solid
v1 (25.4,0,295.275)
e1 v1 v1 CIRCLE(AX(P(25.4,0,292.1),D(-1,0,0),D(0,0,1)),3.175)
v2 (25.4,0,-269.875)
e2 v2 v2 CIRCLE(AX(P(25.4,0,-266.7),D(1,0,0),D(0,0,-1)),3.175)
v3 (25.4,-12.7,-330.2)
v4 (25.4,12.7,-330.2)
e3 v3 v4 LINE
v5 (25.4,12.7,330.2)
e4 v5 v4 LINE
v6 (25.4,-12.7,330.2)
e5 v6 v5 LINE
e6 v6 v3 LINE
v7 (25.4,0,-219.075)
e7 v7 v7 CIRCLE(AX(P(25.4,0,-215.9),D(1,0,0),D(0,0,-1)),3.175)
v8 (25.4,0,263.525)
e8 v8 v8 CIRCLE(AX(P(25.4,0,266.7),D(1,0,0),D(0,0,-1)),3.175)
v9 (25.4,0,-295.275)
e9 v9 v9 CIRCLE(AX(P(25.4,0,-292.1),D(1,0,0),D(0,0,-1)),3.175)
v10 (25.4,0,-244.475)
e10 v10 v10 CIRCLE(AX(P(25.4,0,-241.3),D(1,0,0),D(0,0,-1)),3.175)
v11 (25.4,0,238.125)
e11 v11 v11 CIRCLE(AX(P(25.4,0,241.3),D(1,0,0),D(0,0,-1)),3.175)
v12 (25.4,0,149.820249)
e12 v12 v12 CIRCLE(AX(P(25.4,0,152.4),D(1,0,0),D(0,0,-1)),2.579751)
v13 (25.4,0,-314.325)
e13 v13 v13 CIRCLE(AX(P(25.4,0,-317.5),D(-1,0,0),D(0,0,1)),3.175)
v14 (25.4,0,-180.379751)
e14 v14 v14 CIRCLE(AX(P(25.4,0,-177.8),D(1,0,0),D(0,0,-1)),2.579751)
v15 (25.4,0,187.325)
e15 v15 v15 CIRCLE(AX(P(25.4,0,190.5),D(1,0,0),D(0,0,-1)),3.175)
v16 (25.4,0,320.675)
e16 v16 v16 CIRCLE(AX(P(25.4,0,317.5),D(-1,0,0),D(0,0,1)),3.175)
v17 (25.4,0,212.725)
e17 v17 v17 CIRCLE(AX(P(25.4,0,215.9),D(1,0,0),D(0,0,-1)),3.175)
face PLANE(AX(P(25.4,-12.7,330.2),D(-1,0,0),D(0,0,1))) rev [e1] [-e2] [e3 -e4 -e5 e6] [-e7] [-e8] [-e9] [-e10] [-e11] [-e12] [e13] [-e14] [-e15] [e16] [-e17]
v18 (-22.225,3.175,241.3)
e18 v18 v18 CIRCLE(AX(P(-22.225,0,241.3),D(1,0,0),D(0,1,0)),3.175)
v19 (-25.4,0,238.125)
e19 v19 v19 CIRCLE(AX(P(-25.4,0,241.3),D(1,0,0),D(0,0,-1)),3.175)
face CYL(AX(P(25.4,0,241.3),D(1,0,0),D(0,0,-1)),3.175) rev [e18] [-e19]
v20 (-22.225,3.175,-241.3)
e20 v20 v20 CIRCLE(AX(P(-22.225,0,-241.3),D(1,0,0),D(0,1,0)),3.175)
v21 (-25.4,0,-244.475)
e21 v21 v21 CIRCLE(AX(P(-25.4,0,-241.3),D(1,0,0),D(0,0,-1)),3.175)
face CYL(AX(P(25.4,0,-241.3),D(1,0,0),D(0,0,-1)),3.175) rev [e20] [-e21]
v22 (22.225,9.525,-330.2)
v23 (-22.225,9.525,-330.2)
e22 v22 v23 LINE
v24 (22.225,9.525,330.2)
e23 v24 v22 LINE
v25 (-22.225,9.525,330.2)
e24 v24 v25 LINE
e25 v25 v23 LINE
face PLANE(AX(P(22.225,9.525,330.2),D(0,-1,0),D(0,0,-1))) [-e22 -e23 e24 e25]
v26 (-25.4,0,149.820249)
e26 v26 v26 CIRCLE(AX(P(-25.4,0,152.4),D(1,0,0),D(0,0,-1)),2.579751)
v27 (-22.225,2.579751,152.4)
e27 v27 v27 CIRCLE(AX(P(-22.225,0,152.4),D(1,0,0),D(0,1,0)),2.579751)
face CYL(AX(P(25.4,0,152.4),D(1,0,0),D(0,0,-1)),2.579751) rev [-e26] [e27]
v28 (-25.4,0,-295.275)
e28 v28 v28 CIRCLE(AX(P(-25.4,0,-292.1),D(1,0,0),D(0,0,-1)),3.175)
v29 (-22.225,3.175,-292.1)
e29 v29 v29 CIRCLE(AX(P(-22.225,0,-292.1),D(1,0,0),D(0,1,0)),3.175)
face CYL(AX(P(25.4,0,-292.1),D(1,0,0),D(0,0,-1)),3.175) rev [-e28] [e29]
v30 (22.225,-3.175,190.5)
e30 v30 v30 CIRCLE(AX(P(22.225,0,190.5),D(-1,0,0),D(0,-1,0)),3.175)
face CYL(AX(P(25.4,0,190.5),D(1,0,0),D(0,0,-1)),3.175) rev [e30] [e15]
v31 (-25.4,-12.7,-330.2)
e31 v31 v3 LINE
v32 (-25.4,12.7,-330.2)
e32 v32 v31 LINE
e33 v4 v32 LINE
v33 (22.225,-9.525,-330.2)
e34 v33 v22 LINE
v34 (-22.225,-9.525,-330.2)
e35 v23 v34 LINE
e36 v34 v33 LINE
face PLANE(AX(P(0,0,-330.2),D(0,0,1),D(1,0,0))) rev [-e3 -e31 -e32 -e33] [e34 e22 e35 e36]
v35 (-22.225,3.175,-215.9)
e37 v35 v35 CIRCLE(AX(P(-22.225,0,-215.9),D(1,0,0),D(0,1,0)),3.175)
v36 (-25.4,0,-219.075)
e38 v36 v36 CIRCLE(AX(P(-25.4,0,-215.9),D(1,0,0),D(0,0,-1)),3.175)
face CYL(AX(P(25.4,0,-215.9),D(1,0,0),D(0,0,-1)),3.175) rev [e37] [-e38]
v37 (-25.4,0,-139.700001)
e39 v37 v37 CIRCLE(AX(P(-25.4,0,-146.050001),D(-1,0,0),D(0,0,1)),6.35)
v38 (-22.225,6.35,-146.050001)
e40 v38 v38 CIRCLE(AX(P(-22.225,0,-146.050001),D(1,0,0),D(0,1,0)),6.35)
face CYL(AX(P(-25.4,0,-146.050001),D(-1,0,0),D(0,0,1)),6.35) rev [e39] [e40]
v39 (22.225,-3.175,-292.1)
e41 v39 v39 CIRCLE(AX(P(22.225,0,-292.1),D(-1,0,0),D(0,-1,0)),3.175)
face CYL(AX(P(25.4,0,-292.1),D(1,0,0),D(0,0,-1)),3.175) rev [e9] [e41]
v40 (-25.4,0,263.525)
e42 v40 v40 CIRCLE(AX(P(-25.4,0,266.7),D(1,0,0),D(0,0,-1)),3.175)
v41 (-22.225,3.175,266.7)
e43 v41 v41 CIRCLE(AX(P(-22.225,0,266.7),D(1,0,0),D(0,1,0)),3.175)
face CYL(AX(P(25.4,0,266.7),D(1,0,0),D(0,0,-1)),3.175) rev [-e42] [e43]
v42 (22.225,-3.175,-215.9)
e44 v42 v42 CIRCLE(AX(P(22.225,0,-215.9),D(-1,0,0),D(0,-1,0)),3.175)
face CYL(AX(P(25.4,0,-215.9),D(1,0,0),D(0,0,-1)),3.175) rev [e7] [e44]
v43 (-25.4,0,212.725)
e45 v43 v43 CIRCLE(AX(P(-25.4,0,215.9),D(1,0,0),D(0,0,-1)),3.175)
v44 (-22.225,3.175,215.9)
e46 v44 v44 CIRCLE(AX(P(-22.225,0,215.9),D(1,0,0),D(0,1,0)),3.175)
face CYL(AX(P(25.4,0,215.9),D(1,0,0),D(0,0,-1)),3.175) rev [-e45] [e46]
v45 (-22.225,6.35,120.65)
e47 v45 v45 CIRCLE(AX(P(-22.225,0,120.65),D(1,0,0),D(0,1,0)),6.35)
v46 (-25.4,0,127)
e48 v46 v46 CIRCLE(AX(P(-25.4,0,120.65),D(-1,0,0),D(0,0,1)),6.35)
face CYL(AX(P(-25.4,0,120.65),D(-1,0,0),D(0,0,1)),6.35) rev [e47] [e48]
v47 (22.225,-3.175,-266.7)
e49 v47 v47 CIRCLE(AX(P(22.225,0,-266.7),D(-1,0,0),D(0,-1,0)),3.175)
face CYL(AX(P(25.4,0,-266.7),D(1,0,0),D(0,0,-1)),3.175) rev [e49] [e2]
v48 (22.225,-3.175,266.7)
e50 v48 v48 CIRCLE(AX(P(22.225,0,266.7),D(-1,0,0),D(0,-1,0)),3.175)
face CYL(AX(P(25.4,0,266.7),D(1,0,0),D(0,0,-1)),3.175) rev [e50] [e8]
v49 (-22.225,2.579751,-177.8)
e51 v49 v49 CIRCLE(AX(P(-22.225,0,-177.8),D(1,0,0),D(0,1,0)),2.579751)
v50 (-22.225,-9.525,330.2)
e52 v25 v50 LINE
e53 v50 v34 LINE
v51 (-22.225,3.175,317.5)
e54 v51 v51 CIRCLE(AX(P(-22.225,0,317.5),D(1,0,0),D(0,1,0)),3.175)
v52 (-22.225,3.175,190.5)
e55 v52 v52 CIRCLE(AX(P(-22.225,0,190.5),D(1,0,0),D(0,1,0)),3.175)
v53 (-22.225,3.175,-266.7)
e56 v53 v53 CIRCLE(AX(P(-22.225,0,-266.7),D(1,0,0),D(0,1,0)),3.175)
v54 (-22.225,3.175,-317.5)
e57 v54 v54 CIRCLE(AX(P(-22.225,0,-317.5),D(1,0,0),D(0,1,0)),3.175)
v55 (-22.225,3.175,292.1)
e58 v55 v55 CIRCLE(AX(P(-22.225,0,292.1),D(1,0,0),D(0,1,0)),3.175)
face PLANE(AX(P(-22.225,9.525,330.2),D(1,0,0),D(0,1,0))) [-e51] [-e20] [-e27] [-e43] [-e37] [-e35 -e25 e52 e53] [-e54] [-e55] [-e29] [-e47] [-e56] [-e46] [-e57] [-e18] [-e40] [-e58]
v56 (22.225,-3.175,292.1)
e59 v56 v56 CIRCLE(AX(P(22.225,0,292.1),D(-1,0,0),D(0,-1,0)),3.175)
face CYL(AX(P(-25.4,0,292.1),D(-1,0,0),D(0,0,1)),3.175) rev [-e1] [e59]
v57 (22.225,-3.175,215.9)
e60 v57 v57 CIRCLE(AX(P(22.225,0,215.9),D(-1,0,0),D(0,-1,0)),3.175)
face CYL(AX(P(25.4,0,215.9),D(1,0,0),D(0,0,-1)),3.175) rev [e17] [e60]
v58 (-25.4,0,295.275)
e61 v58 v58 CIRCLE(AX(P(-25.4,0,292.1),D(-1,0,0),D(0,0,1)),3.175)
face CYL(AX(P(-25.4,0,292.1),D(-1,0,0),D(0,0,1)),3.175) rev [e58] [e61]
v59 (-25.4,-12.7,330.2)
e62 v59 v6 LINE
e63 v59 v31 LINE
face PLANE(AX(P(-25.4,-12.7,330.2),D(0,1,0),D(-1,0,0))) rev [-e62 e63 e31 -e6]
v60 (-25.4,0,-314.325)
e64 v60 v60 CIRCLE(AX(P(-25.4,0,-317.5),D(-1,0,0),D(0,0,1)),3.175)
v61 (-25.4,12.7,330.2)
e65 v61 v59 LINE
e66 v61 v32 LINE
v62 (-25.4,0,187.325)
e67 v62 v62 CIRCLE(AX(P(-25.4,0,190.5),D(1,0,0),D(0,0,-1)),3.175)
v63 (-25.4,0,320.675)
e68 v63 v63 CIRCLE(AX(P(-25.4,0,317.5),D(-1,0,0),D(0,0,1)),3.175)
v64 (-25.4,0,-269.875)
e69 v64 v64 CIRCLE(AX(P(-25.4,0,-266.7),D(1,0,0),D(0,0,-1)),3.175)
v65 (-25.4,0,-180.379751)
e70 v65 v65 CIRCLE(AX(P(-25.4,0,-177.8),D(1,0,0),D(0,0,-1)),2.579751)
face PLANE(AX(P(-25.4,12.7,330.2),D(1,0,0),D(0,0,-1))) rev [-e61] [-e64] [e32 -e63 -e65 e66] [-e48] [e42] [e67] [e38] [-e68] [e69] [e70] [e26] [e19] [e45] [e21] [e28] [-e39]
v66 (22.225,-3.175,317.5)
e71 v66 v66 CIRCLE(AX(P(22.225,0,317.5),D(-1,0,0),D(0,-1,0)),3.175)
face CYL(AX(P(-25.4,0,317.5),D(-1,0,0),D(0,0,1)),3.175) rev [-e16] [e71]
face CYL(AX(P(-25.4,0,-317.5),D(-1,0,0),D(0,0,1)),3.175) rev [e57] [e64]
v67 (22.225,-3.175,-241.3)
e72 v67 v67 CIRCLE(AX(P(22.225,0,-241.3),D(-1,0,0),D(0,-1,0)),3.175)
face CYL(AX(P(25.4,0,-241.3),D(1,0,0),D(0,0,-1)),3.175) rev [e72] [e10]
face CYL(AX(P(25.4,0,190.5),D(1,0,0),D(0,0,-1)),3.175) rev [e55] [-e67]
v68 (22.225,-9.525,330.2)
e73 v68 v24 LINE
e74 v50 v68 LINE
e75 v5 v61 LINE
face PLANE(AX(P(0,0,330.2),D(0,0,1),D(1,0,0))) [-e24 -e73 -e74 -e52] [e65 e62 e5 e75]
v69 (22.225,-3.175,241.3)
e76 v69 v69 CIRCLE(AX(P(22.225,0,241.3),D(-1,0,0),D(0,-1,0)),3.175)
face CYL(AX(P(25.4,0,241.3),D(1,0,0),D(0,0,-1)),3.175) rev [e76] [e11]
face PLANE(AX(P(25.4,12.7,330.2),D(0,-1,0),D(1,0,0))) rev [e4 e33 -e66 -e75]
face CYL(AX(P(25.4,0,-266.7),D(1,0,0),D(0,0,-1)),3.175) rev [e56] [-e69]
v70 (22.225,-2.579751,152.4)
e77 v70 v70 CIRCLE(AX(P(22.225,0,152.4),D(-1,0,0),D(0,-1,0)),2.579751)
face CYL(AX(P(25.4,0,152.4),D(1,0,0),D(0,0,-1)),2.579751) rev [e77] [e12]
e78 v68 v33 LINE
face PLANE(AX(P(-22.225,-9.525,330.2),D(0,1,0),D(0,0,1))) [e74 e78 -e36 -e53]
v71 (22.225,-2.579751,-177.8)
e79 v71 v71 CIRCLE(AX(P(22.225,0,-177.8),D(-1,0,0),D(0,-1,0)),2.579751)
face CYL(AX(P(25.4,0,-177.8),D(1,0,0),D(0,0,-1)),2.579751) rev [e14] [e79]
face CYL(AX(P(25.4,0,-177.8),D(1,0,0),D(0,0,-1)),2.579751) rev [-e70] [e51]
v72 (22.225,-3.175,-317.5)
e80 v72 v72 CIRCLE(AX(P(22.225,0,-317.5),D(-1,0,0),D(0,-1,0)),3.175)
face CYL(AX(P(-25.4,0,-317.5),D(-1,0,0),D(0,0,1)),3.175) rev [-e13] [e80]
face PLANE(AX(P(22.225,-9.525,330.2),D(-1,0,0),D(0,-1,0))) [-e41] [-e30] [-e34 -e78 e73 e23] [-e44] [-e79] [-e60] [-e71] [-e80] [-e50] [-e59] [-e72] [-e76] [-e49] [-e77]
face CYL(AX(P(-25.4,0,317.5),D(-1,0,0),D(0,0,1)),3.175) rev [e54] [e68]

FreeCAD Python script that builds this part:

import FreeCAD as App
import Part
import Sketcher
Q = App.Units.Quantity

doc = App.newDocument("Part")
body = doc.addObject("PartDesign::Body", "Body")

sketch1 = body.newObject("Sketcher::SketchObject", "Sketch")
sketch1.AttachmentSupport = (doc.getObject("XY_Plane"), [""])
sketch1.MapMode = "FlatFace"
sketch1.addGeometry([
    Part.LineSegment(App.Vector(-25, 13, 0), App.Vector(-25, -13, 0)),
    Part.LineSegment(App.Vector(-25, -13, 0), App.Vector(25, -13, 0)),
    Part.LineSegment(App.Vector(25, -13, 0), App.Vector(25, 13, 0)),
    Part.LineSegment(App.Vector(25, 13, 0), App.Vector(-25, 13, 0)),
    Part.LineSegment(App.Vector(22, -10, 0), App.Vector(-22, -10, 0)),
    Part.LineSegment(App.Vector(-22, -10, 0), App.Vector(-22, 10, 0)),
    Part.LineSegment(App.Vector(-22, 10, 0), App.Vector(22, 10, 0)),
    Part.LineSegment(App.Vector(22, 10, 0), App.Vector(22, -10, 0)),
], False)
sketch1.addConstraint([
    Sketcher.Constraint("Coincident", 0, 2, 1, 1),
    Sketcher.Constraint("Coincident", 1, 2, 2, 1),
    Sketcher.Constraint("Coincident", 2, 2, 3, 1),
    Sketcher.Constraint("Coincident", 3, 2, 0, 1),
    Sketcher.Constraint("Coincident", 4, 2, 5, 1),
    Sketcher.Constraint("Coincident", 5, 2, 6, 1),
    Sketcher.Constraint("Coincident", 6, 2, 7, 1),
    Sketcher.Constraint("Coincident", 7, 2, 4, 1),
    Sketcher.Constraint("Vertical", 0),
    Sketcher.Constraint("Horizontal", 1),
    Sketcher.Constraint("Vertical", 2),
    Sketcher.Constraint("Horizontal", 3),
    Sketcher.Constraint("Horizontal", 4),
    Sketcher.Constraint("Vertical", 5),
    Sketcher.Constraint("Horizontal", 6),
    Sketcher.Constraint("Vertical", 7),
    Sketcher.Constraint("Symmetric", 0, 2, 2, 2, -1, 1),
    Sketcher.Constraint("Symmetric", 4, 2, 6, 2, -1, 1),
    Sketcher.Constraint("DistanceX", 1, 1, 1, 2, Q("2 in")),
    Sketcher.Constraint("DistanceY", 0, 2, 0, 1, Q("1 in")),
    Sketcher.Constraint("DistanceX", 4, 2, 4, 1, Q("1.75 in")),
    Sketcher.Constraint("DistanceY", 5, 1, 5, 2, Q("0.75 in")),
])
pad1 = body.newObject("PartDesign::Pad", "Pad")
pad1.Profile = sketch1
pad1.Type = "TwoLengths"
pad1.Length = Q("13 in")
pad1.Length2 = Q("13 in")

sketch2 = body.newObject("Sketcher::SketchObject", "Sketch001")
sketch2.AttachmentSupport = (doc.getObject("YZ_Plane"), [""])
sketch2.MapMode = "FlatFace"
sketch2.AttachmentOffset = App.Placement(App.Vector(0, 0, -1 * 25.4), App.Rotation())
sketch2.addGeometry(Part.Circle(App.Vector(0, -317.5, 0), App.Vector(0, 0, 1), 3.2), False)
sketch2.addConstraint([
    Sketcher.Constraint("PointOnObject", 0, 3, -2),
    Sketcher.Constraint("Diameter", 0, Q("0.25 in")),
    Sketcher.Constraint("DistanceY", 0, 3, -1, 1, Q("12.5 in")),
])
doc.recompute()
hole = body.newObject("PartDesign::Hole", "Hole")
hole.Profile = sketch2
hole.ThreadType = "None"
hole.Diameter = Q("0.25 in")
hole.DepthType = "ThroughAll"
hole.Reversed = True

sketch3 = body.newObject("Sketcher::SketchObject", "Sketch002")
sketch3.AttachmentSupport = (doc.getObject("YZ_Plane"), [""])
sketch3.MapMode = "FlatFace"
sketch3.AttachmentOffset = App.Placement(App.Vector(0, 0, -1 * 25.4), App.Rotation())
sketch3.addGeometry([
    Part.Circle(App.Vector(0, 292.1, 0), App.Vector(0, 0, 1), 3.2),
    Part.Circle(App.Vector(0, 317.5, 0), App.Vector(0, 0, 1), 3.2),
], False)
sketch3.addConstraint([
    Sketcher.Constraint("Equal", 0, 1),
    Sketcher.Constraint("PointOnObject", 0, 3, -2),
    Sketcher.Constraint("PointOnObject", 1, 3, -2),
    Sketcher.Constraint("Diameter", 0, Q("0.25 in")),
    Sketcher.Constraint("DistanceY", 0, 3, 1, 3, Q("1 in")),
    Sketcher.Constraint("DistanceY", -1, 1, 0, 3, Q("11.5 in")),
])
doc.recompute()
hole2 = body.newObject("PartDesign::Hole", "Hole001")
hole2.Profile = sketch3
hole2.ThreadType = "None"
hole2.Diameter = Q("0.25 in")
hole2.DepthType = "ThroughAll"
hole2.Reversed = True

sketch4 = body.newObject("Sketcher::SketchObject", "Sketch003")
sketch4.AttachmentSupport = (doc.getObject("YZ_Plane"), [""])
sketch4.MapMode = "FlatFace"
sketch4.AttachmentOffset = App.Placement(App.Vector(0, 0, 1 * 25.4), App.Rotation())
sketch4.addGeometry([
    Part.Circle(App.Vector(0, -292.1, 0), App.Vector(0, 0, 1), 3.2),
    Part.Circle(App.Vector(0, -266.7, 0), App.Vector(0, 0, 1), 3.2),
], False)
sketch4.addConstraint([
    Sketcher.Constraint("Equal", 0, 1),
    Sketcher.Constraint("PointOnObject", 0, 3, -2),
    Sketcher.Constraint("PointOnObject", 1, 3, -2),
    Sketcher.Constraint("Diameter", 0, Q("0.25 in")),
    Sketcher.Constraint("DistanceY", 0, 3, 1, 3, Q("1 in")),
    Sketcher.Constraint("DistanceY", 0, 3, -1, 1, Q("11.5 in")),
])
doc.recompute()
hole3 = body.newObject("PartDesign::Hole", "Hole002")
hole3.Profile = sketch4
hole3.ThreadType = "None"
hole3.Diameter = Q("0.25 in")
hole3.DepthType = "ThroughAll"

sketch5 = body.newObject("Sketcher::SketchObject", "Sketch004")
sketch5.AttachmentSupport = (doc.getObject("YZ_Plane"), [""])
sketch5.MapMode = "FlatFace"
sketch5.AttachmentOffset = App.Placement(App.Vector(0, 0, 1 * 25.4), App.Rotation())
sketch5.addGeometry([
    Part.Circle(App.Vector(0, -215.9, 0), App.Vector(0, 0, 1), 3.2),
    Part.Circle(App.Vector(0, -241.3, 0), App.Vector(0, 0, 1), 3.2),
], False)
sketch5.addConstraint([
    Sketcher.Constraint("Equal", 0, 1),
    Sketcher.Constraint("PointOnObject", 0, 3, -2),
    Sketcher.Constraint("PointOnObject", 1, 3, -2),
    Sketcher.Constraint("Diameter", 0, Q("0.25 in")),
    Sketcher.Constraint("DistanceY", 1, 3, 0, 3, Q("1 in")),
    Sketcher.Constraint("DistanceY", 0, 3, -1, 1, Q("8.5 in")),
])
doc.recompute()
hole4 = body.newObject("PartDesign::Hole", "Hole003")
hole4.Profile = sketch5
hole4.ThreadType = "None"
hole4.Diameter = Q("0.25 in")
hole4.DepthType = "ThroughAll"

sketch6 = body.newObject("Sketcher::SketchObject", "Sketch005")
sketch6.AttachmentSupport = (doc.getObject("YZ_Plane"), [""])
sketch6.MapMode = "FlatFace"
sketch6.AttachmentOffset = App.Placement(App.Vector(0, 0, 1 * 25.4), App.Rotation())
sketch6.addGeometry([
    Part.Circle(App.Vector(0, 190.5, 0), App.Vector(0, 0, 1), 3.2),
    Part.Circle(App.Vector(0, 215.9, 0), App.Vector(0, 0, 1), 3.2),
], False)
sketch6.addConstraint([
    Sketcher.Constraint("Equal", 0, 1),
    Sketcher.Constraint("PointOnObject", 0, 3, -2),
    Sketcher.Constraint("PointOnObject", 1, 3, -2),
    Sketcher.Constraint("Diameter", 0, Q("0.25 in")),
    Sketcher.Constraint("DistanceY", 0, 3, 1, 3, Q("1 in")),
    Sketcher.Constraint("DistanceY", -1, 1, 0, 3, Q("7.5 in")),
])
doc.recompute()
hole5 = body.newObject("PartDesign::Hole", "Hole004")
hole5.Profile = sketch6
hole5.ThreadType = "None"
hole5.Diameter = Q("0.25 in")
hole5.DepthType = "ThroughAll"

sketch7 = body.newObject("Sketcher::SketchObject", "Sketch006")
sketch7.AttachmentSupport = (doc.getObject("YZ_Plane"), [""])
sketch7.MapMode = "FlatFace"
sketch7.AttachmentOffset = App.Placement(App.Vector(0, 0, 1 * 25.4), App.Rotation())
sketch7.addGeometry([
    Part.Circle(App.Vector(0, 266.7, 0), App.Vector(0, 0, 1), 3.2),
    Part.Circle(App.Vector(0, 241.3, 0), App.Vector(0, 0, 1), 3.2),
], False)
sketch7.addConstraint([
    Sketcher.Constraint("Equal", 0, 1),
    Sketcher.Constraint("PointOnObject", 0, 3, -2),
    Sketcher.Constraint("PointOnObject", 1, 3, -2),
    Sketcher.Constraint("Diameter", 0, Q("0.25 in")),
    Sketcher.Constraint("DistanceY", 1, 3, 0, 3, Q("1 in")),
    Sketcher.Constraint("DistanceY", -1, 1, 0, 3, Q("10.5 in")),
])
doc.recompute()
hole6 = body.newObject("PartDesign::Hole", "Hole005")
hole6.Profile = sketch7
hole6.ThreadType = "None"
hole6.Diameter = Q("0.25 in")
hole6.DepthType = "ThroughAll"

sketch8 = body.newObject("Sketcher::SketchObject", "Sketch007")
sketch8.AttachmentSupport = (doc.getObject("YZ_Plane"), [""])
sketch8.MapMode = "FlatFace"
sketch8.AttachmentOffset = App.Placement(App.Vector(0, 0, 1 * 25.4), App.Rotation())
sketch8.addGeometry([
    Part.Circle(App.Vector(0, 152.4, 0), App.Vector(0, 0, 1), 2.6),
    Part.Circle(App.Vector(0, -177.8, 0), App.Vector(0, 0, 1), 2.6),
], False)
sketch8.addConstraint([
    Sketcher.Constraint("Equal", 0, 1),
    Sketcher.Constraint("PointOnObject", 0, 3, -2),
    Sketcher.Constraint("PointOnObject", 1, 3, -2),
    Sketcher.Constraint("DistanceY", -1, 1, 0, 3, Q("6 in")),
    Sketcher.Constraint("DistanceY", 1, 3, -1, 1, Q("7 in")),
    Sketcher.Constraint("Diameter", 0, 5.159502),
])
doc.recompute()
hole7 = body.newObject("PartDesign::Hole", "Hole006")
hole7.Profile = sketch8
hole7.ThreadType = "None"
hole7.Diameter = 5.159502
hole7.DepthType = "ThroughAll"

sketch9 = body.newObject("Sketcher::SketchObject", "Sketch008")
sketch9.AttachmentSupport = (doc.getObject("YZ_Plane"), [""])
sketch9.MapMode = "FlatFace"
sketch9.AttachmentOffset = App.Placement(App.Vector(0, 0, -1 * 25.4), App.Rotation())
sketch9.addGeometry([
    Part.Circle(App.Vector(0, -146, 0), App.Vector(0, 0, 1), 6),
    Part.Circle(App.Vector(0, 121, 0), App.Vector(0, 0, 1), 6),
], False)
sketch9.addConstraint([
    Sketcher.Constraint("Equal", 0, 1),
    Sketcher.Constraint("PointOnObject", 0, 3, -2),
    Sketcher.Constraint("PointOnObject", 1, 3, -2),
    Sketcher.Constraint("Diameter", 0, Q("0.5 in")),
    Sketcher.Constraint("DistanceY", 0, 3, 1, 3, Q("10.5 in")),
    Sketcher.Constraint("DistanceY", 0, 3, -1, 1, Q("5.75 in")),
])
doc.recompute()
hole8 = body.newObject("PartDesign::Hole", "Hole007")
hole8.Profile = sketch9
hole8.ThreadType = "None"
hole8.Diameter = Q("0.5 in")
hole8.DepthType = "Dimension"
hole8.Depth = Q("0.25 in")
hole8.DrillPoint = "Angled"
hole8.DrillPointAngle = 118
hole8.Reversed = True

doc.recompute()
